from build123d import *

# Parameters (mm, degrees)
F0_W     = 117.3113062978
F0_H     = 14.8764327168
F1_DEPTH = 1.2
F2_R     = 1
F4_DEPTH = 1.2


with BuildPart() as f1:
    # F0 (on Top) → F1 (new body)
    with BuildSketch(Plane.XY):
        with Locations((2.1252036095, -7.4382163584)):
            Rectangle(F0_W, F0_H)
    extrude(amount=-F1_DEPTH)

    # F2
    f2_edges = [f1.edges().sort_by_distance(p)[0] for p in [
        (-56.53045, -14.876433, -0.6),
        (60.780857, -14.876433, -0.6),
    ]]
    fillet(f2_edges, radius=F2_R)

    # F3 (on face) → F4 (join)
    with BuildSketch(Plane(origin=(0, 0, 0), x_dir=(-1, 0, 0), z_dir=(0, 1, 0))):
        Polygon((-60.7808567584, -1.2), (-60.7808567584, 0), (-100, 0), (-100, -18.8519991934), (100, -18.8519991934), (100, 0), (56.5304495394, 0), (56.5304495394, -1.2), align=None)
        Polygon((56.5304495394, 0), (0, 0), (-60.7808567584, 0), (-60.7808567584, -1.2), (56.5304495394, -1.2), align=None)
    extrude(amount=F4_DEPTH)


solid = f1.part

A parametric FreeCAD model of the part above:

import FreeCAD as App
import Part
import Sketcher
from FreeCAD import Vector
Q = App.Units.Quantity


def edges_at(feature, points):
    """Names of the edges that pass closest to the given points."""
    edges = feature.Shape.Edges
    near = lambda p: min(range(len(edges)), key=lambda i: edges[i].distToShape(Part.Vertex(*p))[0])
    return sorted({f"Edge{near(p) + 1}" for p in points})


def add_polygon(sketch, points):
    """Adds a closed chain of lines whose ends are joined by coincident constraints."""
    first, n = sketch.GeometryCount, len(points)
    for a, b in zip(points, points[1:] + points[:1]):
        sketch.addGeometry(Part.LineSegment(App.Vector(*a, 0), App.Vector(*b, 0)), False)
    for i in range(n):
        sketch.addConstraint(Sketcher.Constraint("Coincident", first + i, 2, first + (i + 1) % n, 1))

doc = App.newDocument("Part")
body = doc.addObject("PartDesign::Body", "Body")

# Sketch on XY plane
sketch1 = doc.addObject("Sketcher::SketchObject", "Sketch")
body.addObject(sketch1)
sketch1.AttachmentSupport = (doc.XY_Plane, [""])
sketch1.MapMode = "FlatFace"
add_polygon(sketch1, [(-56.53045, 0), (-56.53045, -14.876433), (60.780857, -14.876433), (60.780857, 0)])  # lines 0-3
sketch1.addConstraint([
    Sketcher.Constraint("Vertical", 0),
    Sketcher.Constraint("Horizontal", 1),
    Sketcher.Constraint("Vertical", 2),
    Sketcher.Constraint("Horizontal", 3),
    Sketcher.Constraint("PointOnObject", 2, 2, -1),
    Sketcher.Constraint("DistanceX", 1, 1, 1, 2, Q("117.311306 mm")),
    Sketcher.Constraint("DistanceY", 0, 2, 0, 1, Q("14.876433 mm")),
    Sketcher.Constraint("DistanceX", 0, 2, -1, 1, Q("56.53045 mm")),
])
pad1 = doc.addObject("PartDesign::Pad", "Pad")
body.addObject(pad1)
pad1.Profile = sketch1
pad1.Length = 1.2
pad1.Reversed = True
doc.recompute()

fillet = doc.addObject("PartDesign::Fillet", "Fillet")
body.addObject(fillet)
fillet.Base = (pad1, edges_at(pad1, [(-56.53, -14.876, -0.6), (60.781, -14.876, -0.6)]))
fillet.Radius = 1

# Sketch on XZ plane
sketch2 = doc.addObject("Sketcher::SketchObject", "Sketch001")
body.addObject(sketch2)
sketch2.AttachmentSupport = (doc.XZ_Plane, [""])
sketch2.MapMode = "FlatFace"
add_polygon(sketch2, [(100, 0), (100, -18.851999), (-100, -18.851999), (-100, 0)])  # lines 0-3
sketch2.addConstraint([
    Sketcher.Constraint("Vertical", 0),
    Sketcher.Constraint("Horizontal", 1),
    Sketcher.Constraint("Vertical", 2),
    Sketcher.Constraint("Horizontal", 3),
    Sketcher.Constraint("Symmetric", 2, 2, 3, 2, -1, 1),
    Sketcher.Constraint("DistanceX", 1, 2, 1, 1, Q("200 mm")),
    Sketcher.Constraint("DistanceY", 0, 2, 0, 1, Q("18.851999 mm")),
])
pad2 = doc.addObject("PartDesign::Pad", "Pad001")
body.addObject(pad2)
pad2.Profile = sketch2
pad2.Length = 1.2
pad2.Reversed = True

doc.recompute()
